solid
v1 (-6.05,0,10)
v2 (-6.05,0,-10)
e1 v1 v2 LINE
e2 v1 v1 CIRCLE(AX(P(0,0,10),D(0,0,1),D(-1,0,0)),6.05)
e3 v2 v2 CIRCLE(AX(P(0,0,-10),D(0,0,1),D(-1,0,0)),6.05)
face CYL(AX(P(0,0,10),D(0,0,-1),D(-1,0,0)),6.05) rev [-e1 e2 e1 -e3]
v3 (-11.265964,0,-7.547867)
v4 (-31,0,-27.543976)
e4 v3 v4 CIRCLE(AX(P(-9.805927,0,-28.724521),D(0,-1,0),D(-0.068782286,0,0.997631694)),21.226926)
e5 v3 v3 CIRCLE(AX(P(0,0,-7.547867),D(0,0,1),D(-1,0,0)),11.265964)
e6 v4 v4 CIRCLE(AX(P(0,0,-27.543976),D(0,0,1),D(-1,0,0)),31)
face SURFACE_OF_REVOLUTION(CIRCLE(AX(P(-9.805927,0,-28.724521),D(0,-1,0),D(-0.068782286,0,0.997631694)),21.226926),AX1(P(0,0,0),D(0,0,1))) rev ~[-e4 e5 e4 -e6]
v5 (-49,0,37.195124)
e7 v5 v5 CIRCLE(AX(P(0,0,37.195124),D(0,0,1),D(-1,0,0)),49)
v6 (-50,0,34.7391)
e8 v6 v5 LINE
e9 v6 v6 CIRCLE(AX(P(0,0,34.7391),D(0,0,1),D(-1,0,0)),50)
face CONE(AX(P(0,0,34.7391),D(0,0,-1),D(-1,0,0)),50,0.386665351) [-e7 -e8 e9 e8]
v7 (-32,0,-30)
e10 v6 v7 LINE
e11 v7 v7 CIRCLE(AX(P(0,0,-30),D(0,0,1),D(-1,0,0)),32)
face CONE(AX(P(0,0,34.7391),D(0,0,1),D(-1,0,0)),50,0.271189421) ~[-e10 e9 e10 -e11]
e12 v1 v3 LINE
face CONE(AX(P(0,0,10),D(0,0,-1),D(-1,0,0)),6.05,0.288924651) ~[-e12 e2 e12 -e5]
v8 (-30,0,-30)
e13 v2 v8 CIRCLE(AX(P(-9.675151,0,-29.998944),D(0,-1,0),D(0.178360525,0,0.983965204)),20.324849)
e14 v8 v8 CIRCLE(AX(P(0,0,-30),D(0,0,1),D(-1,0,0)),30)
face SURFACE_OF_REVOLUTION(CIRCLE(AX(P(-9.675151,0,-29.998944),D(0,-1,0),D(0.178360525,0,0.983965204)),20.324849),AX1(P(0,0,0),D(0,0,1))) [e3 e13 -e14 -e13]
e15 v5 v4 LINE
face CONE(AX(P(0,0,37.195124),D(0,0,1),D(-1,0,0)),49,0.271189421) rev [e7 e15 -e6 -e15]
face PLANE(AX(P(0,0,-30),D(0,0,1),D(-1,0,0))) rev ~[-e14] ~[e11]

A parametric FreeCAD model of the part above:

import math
import FreeCAD as App
import Part
import Sketcher
from FreeCAD import Vector

doc = App.newDocument("Part")
params = doc.addObject("Spreadsheet::Sheet", "Params")
for row, (alias, value) in enumerate([
    ("sketch1_width", "2 mm"),
    ("sketch1_height", "20 mm"),
    ("revolution_angle", "360 deg"),
], start=1):
    params.set(f"A{row}", alias)
    params.set(f"B{row}", "=" + value)
    params.setAlias(f"B{row}", alias)

body = doc.addObject("PartDesign::Body", "Body")

# Sketch on XZ plane
sketch1 = body.newObject("Sketcher::SketchObject", "Sketch")
sketch1.AttachmentSupport = (doc.getObject("XZ_Plane"), [""])
sketch1.MapMode = "FlatFace"
sketch1.addGeometry(Part.LineSegment(Vector(-50, 34.7391, 0), Vector(-32, -30, 0)), False)
sketch1.addGeometry(Part.LineSegment(Vector(-32, -30, 0), Vector(-30, -30, 0)), False)
sketch1.addGeometry(Part.ArcOfCircle(Part.Circle(Vector(-9.675151, -29.998944, 0), Vector(0, 0, 1), 20.324849), math.radians(79.72572), math.radians(180.002976)), False)
sketch1.addGeometry(Part.LineSegment(Vector(-6.05, -10, 0), Vector(-6.05, 10, 0)), False)
sketch1.addGeometry(Part.LineSegment(Vector(-6.05, 10, 0), Vector(-11.265964, -7.547867, 0)), False)
sketch1.addGeometry(Part.ArcOfCircle(Part.Circle(Vector(-9.805927, -28.724521, 0), Vector(0, 0, 1), 21.226926), math.radians(93.944049), math.radians(176.811824)), False)
sketch1.addGeometry(Part.LineSegment(Vector(-31, -27.543976, 0), Vector(-49, 37.195124, 0)), False)
sketch1.addGeometry(Part.LineSegment(Vector(-49, 37.195124, 0), Vector(-50, 34.7391, 0)), False)
sketch1.addConstraint(Sketcher.Constraint("Coincident", 0, 2, 1, 1))
sketch1.addConstraint(Sketcher.Constraint("Coincident", 1, 2, 2, 2))
sketch1.addConstraint(Sketcher.Constraint("Coincident", 2, 1, 3, 1))
sketch1.addConstraint(Sketcher.Constraint("Coincident", 3, 2, 4, 1))
sketch1.addConstraint(Sketcher.Constraint("Coincident", 4, 2, 5, 1))
sketch1.addConstraint(Sketcher.Constraint("Coincident", 5, 2, 6, 1))
sketch1.addConstraint(Sketcher.Constraint("Coincident", 6, 2, 7, 1))
sketch1.addConstraint(Sketcher.Constraint("Coincident", 7, 2, 0, 1))
sketch1.addConstraint(Sketcher.Constraint("Horizontal", 1))
sketch1.addConstraint(Sketcher.Constraint("Vertical", 3))
sketch1.addConstraint(Sketcher.Constraint("Parallel", 0, 6))
sketch1.addConstraint(Sketcher.Constraint("Equal", 0, 6))
sketch1.addConstraint(Sketcher.Constraint("DistanceX", 1, 1, 1, 2, 2.0))
sketch1.addConstraint(Sketcher.Constraint("DistanceY", 3, 1, 3, 2, 20.0))
sketch1.addConstraint(Sketcher.Constraint("DistanceX", 0, 2, -1, 1, 32.0))
sketch1.addConstraint(Sketcher.Constraint("DistanceY", 0, 2, -1, 1, 30.0))
sketch1.addConstraint(Sketcher.Constraint("DistanceY", 2, 1, -1, 1, 10.0))
sketch1.addConstraint(Sketcher.Constraint("DistanceX", 5, 2, -1, 1, 31.0))
sketch1.addConstraint(Sketcher.Constraint("DistanceX", 6, 2, -1, 1, 49.0))
sketch1.addConstraint(Sketcher.Constraint("DistanceX", 2, 1, -1, 1, 6.05))
sketch1.addConstraint(Sketcher.Constraint("Radius", 2, 20.324849))
sketch1.addConstraint(Sketcher.Constraint("Radius", 5, 21.226926))
sketch1.addConstraint(Sketcher.Constraint("DistanceY", -1, 1, 7, 2, 34.7391))
sketch1.addConstraint(Sketcher.Constraint("DistanceY", 5, 3, -1, 1, 28.724521))
sketch1.addConstraint(Sketcher.Constraint("DistanceY", 2, 3, 5, 2, 2.454968))
sketch1.addConstraint(Sketcher.Constraint("DistanceY", 5, 2, 4, 2, 19.996109))
sketch1.setExpression("Constraints[12]", "Params.sketch1_width")
sketch1.setExpression("Constraints[13]", "Params.sketch1_height")
revolution = body.newObject("PartDesign::Revolution", "Revolution")
revolution.Profile = sketch1
revolution.ReferenceAxis = (sketch1, ["V_Axis"])
revolution.setExpression("Angle", "Params.revolution_angle")

doc.recompute()
